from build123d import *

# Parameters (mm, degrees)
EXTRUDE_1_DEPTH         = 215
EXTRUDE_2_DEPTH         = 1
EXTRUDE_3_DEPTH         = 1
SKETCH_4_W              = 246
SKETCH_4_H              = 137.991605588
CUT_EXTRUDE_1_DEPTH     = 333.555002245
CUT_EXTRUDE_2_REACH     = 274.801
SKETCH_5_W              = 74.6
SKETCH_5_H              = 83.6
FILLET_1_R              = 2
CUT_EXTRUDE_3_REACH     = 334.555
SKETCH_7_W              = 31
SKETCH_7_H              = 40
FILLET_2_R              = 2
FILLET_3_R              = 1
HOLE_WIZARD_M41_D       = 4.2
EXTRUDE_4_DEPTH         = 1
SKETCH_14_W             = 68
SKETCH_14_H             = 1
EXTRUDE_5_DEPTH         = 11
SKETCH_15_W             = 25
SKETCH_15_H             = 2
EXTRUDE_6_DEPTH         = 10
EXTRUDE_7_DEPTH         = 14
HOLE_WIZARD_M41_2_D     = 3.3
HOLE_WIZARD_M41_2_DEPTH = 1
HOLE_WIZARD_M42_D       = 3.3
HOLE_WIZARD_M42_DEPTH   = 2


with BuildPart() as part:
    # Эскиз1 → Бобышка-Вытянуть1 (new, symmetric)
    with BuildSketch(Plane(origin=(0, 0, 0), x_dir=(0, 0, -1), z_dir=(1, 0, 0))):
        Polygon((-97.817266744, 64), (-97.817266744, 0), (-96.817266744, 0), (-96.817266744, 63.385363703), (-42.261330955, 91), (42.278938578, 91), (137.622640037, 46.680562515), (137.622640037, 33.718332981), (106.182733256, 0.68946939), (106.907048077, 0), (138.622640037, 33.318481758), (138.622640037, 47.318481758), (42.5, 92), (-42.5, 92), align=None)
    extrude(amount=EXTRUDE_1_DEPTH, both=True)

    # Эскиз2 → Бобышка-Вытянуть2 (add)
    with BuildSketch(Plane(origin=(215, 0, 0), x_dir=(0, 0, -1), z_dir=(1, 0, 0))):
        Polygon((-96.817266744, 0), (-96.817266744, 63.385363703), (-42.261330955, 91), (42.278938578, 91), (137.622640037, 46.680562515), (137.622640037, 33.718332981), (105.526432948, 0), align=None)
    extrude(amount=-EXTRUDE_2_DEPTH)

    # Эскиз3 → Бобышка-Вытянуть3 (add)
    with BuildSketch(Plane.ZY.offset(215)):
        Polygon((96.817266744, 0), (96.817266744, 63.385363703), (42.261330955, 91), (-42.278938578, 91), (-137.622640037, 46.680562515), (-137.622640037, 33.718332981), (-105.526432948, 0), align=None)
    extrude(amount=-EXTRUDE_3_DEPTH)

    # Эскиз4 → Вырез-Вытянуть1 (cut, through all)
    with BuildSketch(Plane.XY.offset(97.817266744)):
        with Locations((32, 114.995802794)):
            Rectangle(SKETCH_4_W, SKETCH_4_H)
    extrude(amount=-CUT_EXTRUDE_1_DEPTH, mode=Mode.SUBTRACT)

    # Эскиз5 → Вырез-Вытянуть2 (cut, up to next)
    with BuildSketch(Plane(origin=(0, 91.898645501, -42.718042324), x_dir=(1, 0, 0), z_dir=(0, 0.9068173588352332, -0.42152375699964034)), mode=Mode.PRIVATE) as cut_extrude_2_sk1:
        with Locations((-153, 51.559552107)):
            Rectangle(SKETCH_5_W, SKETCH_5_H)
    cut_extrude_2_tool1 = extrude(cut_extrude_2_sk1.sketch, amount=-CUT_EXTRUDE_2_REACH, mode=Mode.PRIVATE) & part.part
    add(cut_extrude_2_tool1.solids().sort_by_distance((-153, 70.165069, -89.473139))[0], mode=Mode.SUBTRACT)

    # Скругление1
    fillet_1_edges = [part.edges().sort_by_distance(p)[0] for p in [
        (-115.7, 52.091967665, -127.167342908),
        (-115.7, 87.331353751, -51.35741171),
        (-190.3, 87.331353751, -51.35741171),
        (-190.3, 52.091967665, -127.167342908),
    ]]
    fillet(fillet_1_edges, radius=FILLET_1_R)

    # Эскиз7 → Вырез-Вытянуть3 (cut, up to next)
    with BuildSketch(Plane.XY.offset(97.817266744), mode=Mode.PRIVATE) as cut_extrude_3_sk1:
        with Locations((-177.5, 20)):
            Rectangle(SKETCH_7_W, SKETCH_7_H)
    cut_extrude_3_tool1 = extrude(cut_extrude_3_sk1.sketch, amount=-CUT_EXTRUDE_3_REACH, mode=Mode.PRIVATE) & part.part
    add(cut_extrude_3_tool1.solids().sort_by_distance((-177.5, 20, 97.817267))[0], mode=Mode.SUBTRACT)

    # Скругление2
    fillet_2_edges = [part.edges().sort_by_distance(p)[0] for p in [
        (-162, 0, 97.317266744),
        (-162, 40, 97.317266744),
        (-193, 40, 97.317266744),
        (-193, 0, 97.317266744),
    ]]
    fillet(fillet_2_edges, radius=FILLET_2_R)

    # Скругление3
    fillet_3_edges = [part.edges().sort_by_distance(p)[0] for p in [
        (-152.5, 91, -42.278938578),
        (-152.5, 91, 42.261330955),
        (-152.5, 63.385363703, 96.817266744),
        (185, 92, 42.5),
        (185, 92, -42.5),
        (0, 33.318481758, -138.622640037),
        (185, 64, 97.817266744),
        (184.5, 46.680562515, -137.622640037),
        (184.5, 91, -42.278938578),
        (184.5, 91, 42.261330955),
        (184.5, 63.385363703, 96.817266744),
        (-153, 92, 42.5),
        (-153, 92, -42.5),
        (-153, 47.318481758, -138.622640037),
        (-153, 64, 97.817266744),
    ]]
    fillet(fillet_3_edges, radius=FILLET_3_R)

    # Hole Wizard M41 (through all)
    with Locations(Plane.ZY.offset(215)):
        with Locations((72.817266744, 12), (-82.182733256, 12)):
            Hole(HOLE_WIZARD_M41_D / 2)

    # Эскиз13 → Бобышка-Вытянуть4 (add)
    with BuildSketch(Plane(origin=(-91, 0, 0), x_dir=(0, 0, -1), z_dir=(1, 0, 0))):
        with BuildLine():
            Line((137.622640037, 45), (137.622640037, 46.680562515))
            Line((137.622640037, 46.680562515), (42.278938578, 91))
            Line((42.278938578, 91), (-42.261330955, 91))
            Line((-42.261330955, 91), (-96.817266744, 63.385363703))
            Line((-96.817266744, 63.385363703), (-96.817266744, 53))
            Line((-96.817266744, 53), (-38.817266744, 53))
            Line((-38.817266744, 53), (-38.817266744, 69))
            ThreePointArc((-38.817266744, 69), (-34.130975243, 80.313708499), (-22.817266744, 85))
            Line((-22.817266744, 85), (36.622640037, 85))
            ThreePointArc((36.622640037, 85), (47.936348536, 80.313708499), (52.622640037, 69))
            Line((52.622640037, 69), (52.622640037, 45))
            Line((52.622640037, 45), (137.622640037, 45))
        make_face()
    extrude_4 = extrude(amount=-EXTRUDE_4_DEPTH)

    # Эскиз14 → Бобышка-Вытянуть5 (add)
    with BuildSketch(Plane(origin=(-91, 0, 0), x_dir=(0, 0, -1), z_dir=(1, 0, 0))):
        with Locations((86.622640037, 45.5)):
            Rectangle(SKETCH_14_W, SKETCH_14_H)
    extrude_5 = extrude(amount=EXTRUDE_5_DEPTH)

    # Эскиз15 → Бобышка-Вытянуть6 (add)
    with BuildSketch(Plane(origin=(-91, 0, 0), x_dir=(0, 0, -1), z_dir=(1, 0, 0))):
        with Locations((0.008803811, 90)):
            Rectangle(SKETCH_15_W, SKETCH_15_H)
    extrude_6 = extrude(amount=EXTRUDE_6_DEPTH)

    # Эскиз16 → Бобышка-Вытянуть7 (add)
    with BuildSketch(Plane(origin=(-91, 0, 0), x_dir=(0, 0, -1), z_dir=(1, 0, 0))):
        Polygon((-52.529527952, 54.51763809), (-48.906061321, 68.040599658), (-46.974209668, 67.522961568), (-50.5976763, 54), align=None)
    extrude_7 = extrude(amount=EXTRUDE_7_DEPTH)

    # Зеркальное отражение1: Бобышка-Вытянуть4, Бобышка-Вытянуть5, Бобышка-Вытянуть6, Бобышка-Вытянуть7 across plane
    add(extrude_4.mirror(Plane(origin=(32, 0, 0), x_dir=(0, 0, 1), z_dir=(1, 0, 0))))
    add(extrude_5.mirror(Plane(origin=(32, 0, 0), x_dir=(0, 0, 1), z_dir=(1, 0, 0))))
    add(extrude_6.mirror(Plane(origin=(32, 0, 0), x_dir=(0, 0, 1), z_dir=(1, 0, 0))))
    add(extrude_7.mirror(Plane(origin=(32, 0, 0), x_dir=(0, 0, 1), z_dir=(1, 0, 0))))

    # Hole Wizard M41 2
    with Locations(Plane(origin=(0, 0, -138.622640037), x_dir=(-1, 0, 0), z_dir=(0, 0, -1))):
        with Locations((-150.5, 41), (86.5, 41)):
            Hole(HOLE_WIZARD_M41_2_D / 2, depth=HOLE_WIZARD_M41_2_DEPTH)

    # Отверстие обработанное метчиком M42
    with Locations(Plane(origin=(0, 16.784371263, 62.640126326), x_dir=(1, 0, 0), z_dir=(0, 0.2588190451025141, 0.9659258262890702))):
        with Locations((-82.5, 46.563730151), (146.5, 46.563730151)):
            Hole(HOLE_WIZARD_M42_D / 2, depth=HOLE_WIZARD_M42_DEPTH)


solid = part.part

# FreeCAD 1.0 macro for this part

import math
import FreeCAD as App
import Part
import Sketcher
from FreeCAD import Vector
Q = App.Units.Quantity


def edges_at(feature, points):
    """Names of the edges that pass closest to the given points."""
    edges = feature.Shape.Edges
    near = lambda p: min(range(len(edges)), key=lambda i: edges[i].distToShape(Part.Vertex(*p))[0])
    return sorted({f"Edge{near(p) + 1}" for p in points})


def add_polygon(sketch, points):
    """Adds a closed chain of lines whose ends are joined by coincident constraints."""
    first, n = sketch.GeometryCount, len(points)
    for a, b in zip(points, points[1:] + points[:1]):
        sketch.addGeometry(Part.LineSegment(App.Vector(*a, 0), App.Vector(*b, 0)), False)
    for i in range(n):
        sketch.addConstraint(Sketcher.Constraint("Coincident", first + i, 2, first + (i + 1) % n, 1))

doc = App.newDocument("Part")
body = doc.addObject("PartDesign::Body", "Body")

sketch1 = body.newObject("Sketcher::SketchObject", "Sketch")
sketch1.AttachmentSupport = (doc.getObject("YZ_Plane"), [""])
sketch1.MapMode = "FlatFace"
add_polygon(sketch1, [(64, 97.817267), (0, 97.817267), (0, 96.817267), (63.385364, 96.817267), (91, 42.261331), (91, -42.278939), (46.680563, -137.62264), (33.718333, -137.62264), (0.689469, -106.182733), (0, -106.907048), (33.318482, -138.62264), (47.318482, -138.62264), (92, -42.5), (92, 42.5)])
sketch1.addConstraint([
    Sketcher.Constraint("Horizontal", 0),
    Sketcher.Constraint("Vertical", 1),
    Sketcher.Constraint("Horizontal", 2),
    Sketcher.Constraint("Vertical", 4),
    Sketcher.Constraint("Horizontal", 6),
    Sketcher.Constraint("Horizontal", 10),
    Sketcher.Constraint("Vertical", 12),
    Sketcher.Constraint("PointOnObject", 0, 2, -2),
    Sketcher.Constraint("PointOnObject", 8, 2, -2),
    Sketcher.Constraint("Perpendicular", 7, 8),
    Sketcher.Constraint("Perpendicular", 8, 9),
    Sketcher.Constraint("Parallel", 5, 11),
    Sketcher.Constraint("Parallel", 3, 13),
    Sketcher.Constraint("DistanceX", 0, 2, 0, 1, Q("64 mm")),
    Sketcher.Constraint("DistanceX", 10, 1, 10, 2, Q("14 mm")),
    Sketcher.Constraint("DistanceY", 1, 2, 1, 1, Q("1 mm")),
    Sketcher.Constraint("DistanceY", 12, 1, 12, 2, Q("85 mm")),
    Sketcher.Constraint("Distance", 8, Q("1 mm")),
    Sketcher.Constraint("Distance", 9, Q("46 mm")),
    Sketcher.Constraint("Distance", 11, Q("106 mm")),
    Sketcher.Constraint("Distance", 13, Q("62 mm")),
    Sketcher.Constraint("DistanceX", -1, 1, 3, 2, Q("91 mm")),
    Sketcher.Constraint("DistanceX", -1, 1, 11, 2, Q("92 mm")),
    Sketcher.Constraint("DistanceY", 7, 2, 1, 2, Q("203 mm")),
    Sketcher.Constraint("DistanceY", 9, 2, 6, 2, Q("1 mm")),
    Sketcher.Constraint("DistanceY", 11, 2, -1, 1, Q("42.5 mm")),
    Sketcher.Constraint("DistanceX", 6, 2, 6, 1, Q("12.96223 mm")),
    Sketcher.Constraint("DistanceY", 4, 2, 4, 1, Q("84.54027 mm")),
])
pad1 = body.newObject("PartDesign::Pad", "Pad")
pad1.Profile = sketch1
pad1.Length = 430
pad1.Midplane = True

sketch2 = body.newObject("Sketcher::SketchObject", "Sketch001")
sketch2.AttachmentSupport = (doc.getObject("YZ_Plane"), [""])
sketch2.MapMode = "FlatFace"
sketch2.AttachmentOffset = App.Placement(Vector(0, 0, 215), App.Rotation())
add_polygon(sketch2, [(63.385364, 96.817267), (0, 96.817267), (0, -105.526433), (33.718333, -137.62264), (46.680563, -137.62264), (91, -42.278939), (91, 42.261331)])
sketch2.addConstraint([
    Sketcher.Constraint("Horizontal", 0),
    Sketcher.Constraint("Vertical", 1),
    Sketcher.Constraint("Horizontal", 3),
    Sketcher.Constraint("Vertical", 5),
    Sketcher.Constraint("PointOnObject", 0, 2, -2),
    Sketcher.Constraint("DistanceX", -1, 1, 4, 2, Q("91 mm")),
    Sketcher.Constraint("DistanceY", 1, 2, 1, 1, Q("202.3437 mm")),
    Sketcher.Constraint("DistanceX", 3, 1, 3, 2, Q("12.96223 mm")),
    Sketcher.Constraint("DistanceY", 5, 1, 5, 2, Q("84.54027 mm")),
    Sketcher.Constraint("DistanceY", 3, 2, 4, 2, Q("95.343701 mm")),
    Sketcher.Constraint("DistanceX", 3, 2, 6, 2, Q("16.704801 mm")),
    Sketcher.Constraint("Distance", 2, Q("46.552041 mm")),
    Sketcher.Constraint("Distance", 4, Q("105.141019 mm")),
    Sketcher.Constraint("DistanceY", 2, 2, -1, 1, Q("137.62264 mm")),
])
pad2 = body.newObject("PartDesign::Pad", "Pad001")
pad2.Profile = sketch2
pad2.Length = 1
pad2.Reversed = True

sketch3 = body.newObject("Sketcher::SketchObject", "Sketch002")
sketch3.AttachmentSupport = (doc.getObject("YZ_Plane"), [""])
sketch3.MapMode = "FlatFace"
sketch3.AttachmentOffset = App.Placement(Vector(0, 0, -215), App.Rotation())
add_polygon(sketch3, [(0, 96.817267), (63.385364, 96.817267), (91, 42.261331), (91, -42.278939), (46.680563, -137.62264), (33.718333, -137.62264), (0, -105.526433)])
sketch3.addConstraint([
    Sketcher.Constraint("Horizontal", 0),
    Sketcher.Constraint("Vertical", 2),
    Sketcher.Constraint("Horizontal", 4),
    Sketcher.Constraint("Vertical", 6),
    Sketcher.Constraint("PointOnObject", 5, 2, -2),
    Sketcher.Constraint("DistanceX", -1, 1, 1, 2, Q("91 mm")),
    Sketcher.Constraint("DistanceY", 6, 1, 6, 2, Q("202.3437 mm")),
    Sketcher.Constraint("DistanceX", 4, 2, 4, 1, Q("12.96223 mm")),
    Sketcher.Constraint("DistanceY", 2, 2, 2, 1, Q("84.54027 mm")),
    Sketcher.Constraint("DistanceY", 3, 2, 2, 2, Q("95.343701 mm")),
    Sketcher.Constraint("DistanceX", 3, 2, 0, 2, Q("16.704801 mm")),
    Sketcher.Constraint("Distance", 3, Q("105.141019 mm")),
    Sketcher.Constraint("Distance", 5, Q("46.552041 mm")),
    Sketcher.Constraint("DistanceY", -1, 1, 1, 2, Q("42.261331 mm")),
])
pad3 = body.newObject("PartDesign::Pad", "Pad002")
pad3.Profile = sketch3
pad3.Length = 1

sketch4 = body.newObject("Sketcher::SketchObject", "Sketch003")
sketch4.AttachmentSupport = (doc.getObject("XY_Plane"), [""])
sketch4.MapMode = "FlatFace"
sketch4.AttachmentOffset = App.Placement(Vector(0, 0, 97.817267), App.Rotation())
add_polygon(sketch4, [(-91, 183.991606), (-91, 46), (155, 46), (155, 183.991606)])
sketch4.addConstraint([
    Sketcher.Constraint("Vertical", 0),
    Sketcher.Constraint("Horizontal", 1),
    Sketcher.Constraint("Vertical", 2),
    Sketcher.Constraint("Horizontal", 3),
    Sketcher.Constraint("DistanceX", 1, 1, 1, 2, Q("246 mm")),
    Sketcher.Constraint("DistanceX", 0, 2, -1, 1, Q("91 mm")),
    Sketcher.Constraint("DistanceY", -1, 1, 0, 2, Q("46 mm")),
    Sketcher.Constraint("DistanceY", 0, 2, 0, 1, Q("137.991606 mm")),
])
pocket1 = body.newObject("PartDesign::Pocket", "Pocket")
pocket1.Profile = sketch4
pocket1.Type = "ThroughAll"

sketch5 = body.newObject("Sketcher::SketchObject", "Sketch004")
sketch5.Placement = App.Placement(Vector(0, 91.898646, -42.718042), App.Rotation(Vector(1, 0, 0), Vector(0, -0.421523757, -0.906817359), Vector(0, 0.906817359, -0.421523757), "ZXY"))
add_polygon(sketch5, [(-190.3, 93.359552), (-190.3, 9.759552), (-115.7, 9.759552), (-115.7, 93.359552)])
sketch5.addConstraint([
    Sketcher.Constraint("Vertical", 0),
    Sketcher.Constraint("Horizontal", 1),
    Sketcher.Constraint("Vertical", 2),
    Sketcher.Constraint("Horizontal", 3),
    Sketcher.Constraint("DistanceX", 1, 1, 1, 2, Q("74.6 mm")),
    Sketcher.Constraint("DistanceY", 0, 2, 0, 1, Q("83.6 mm")),
    Sketcher.Constraint("DistanceX", 0, 2, -1, 1, Q("190.3 mm")),
    Sketcher.Constraint("DistanceY", -1, 1, 0, 2, Q("9.759552 mm")),
])
pocket2 = body.newObject("PartDesign::Pocket", "Pocket001")
pocket2.Profile = sketch5
pocket2.Type = "UpToFirst"
doc.recompute()

fillet = body.newObject("PartDesign::Fillet", "Fillet")
fillet.Base = (pocket2, edges_at(pocket2, [
    (-115.7, 52.092, -127.167),
    (-115.7, 87.331, -51.357),
    (-190.3, 87.331, -51.357),
    (-190.3, 52.092, -127.167),
]))
fillet.Radius = 2

sketch6 = body.newObject("Sketcher::SketchObject", "Sketch005")
sketch6.AttachmentSupport = (doc.getObject("XY_Plane"), [""])
sketch6.MapMode = "FlatFace"
sketch6.AttachmentOffset = App.Placement(Vector(0, 0, 97.817267), App.Rotation())
add_polygon(sketch6, [(-193, 40), (-193, 0), (-162, 0), (-162, 40)])
sketch6.addConstraint([
    Sketcher.Constraint("Vertical", 0),
    Sketcher.Constraint("Horizontal", 1),
    Sketcher.Constraint("Vertical", 2),
    Sketcher.Constraint("Horizontal", 3),
    Sketcher.Constraint("PointOnObject", 0, 2, -1),
    Sketcher.Constraint("DistanceX", 1, 1, 1, 2, Q("31 mm")),
    Sketcher.Constraint("DistanceY", 0, 2, 0, 1, Q("40 mm")),
    Sketcher.Constraint("DistanceX", 0, 2, -1, 1, Q("193 mm")),
])
pocket3 = body.newObject("PartDesign::Pocket", "Pocket002")
pocket3.Profile = sketch6
pocket3.Type = "UpToFirst"
doc.recompute()

fillet2 = body.newObject("PartDesign::Fillet", "Fillet001")
fillet2.Base = (pocket3, edges_at(pocket3, [
    (-162, 0, 97.317),
    (-162, 40, 97.317),
    (-193, 40, 97.317),
    (-193, 0, 97.317),
]))
fillet2.Radius = 2
doc.recompute()

fillet3 = body.newObject("PartDesign::Fillet", "Fillet002")
fillet3.Base = (fillet2, edges_at(fillet2, [
    (-152.5, 91, -42.279),
    (-152.5, 91, 42.261),
    (-152.5, 63.385, 96.817),
    (185, 92, 42.5),
    (185, 92, -42.5),
    (0, 33.318, -138.623),
    (185, 64, 97.817),
    (184.5, 46.681, -137.623),
    (184.5, 91, -42.279),
    (184.5, 91, 42.261),
    (184.5, 63.385, 96.817),
    (-153, 92, 42.5),
    (-153, 92, -42.5),
    (-153, 47.318, -138.623),
    (-153, 64, 97.817),
]))
fillet3.Radius = 1

sketch7 = body.newObject("Sketcher::SketchObject", "Sketch006")
sketch7.AttachmentSupport = (doc.getObject("YZ_Plane"), [""])
sketch7.MapMode = "FlatFace"
sketch7.AttachmentOffset = App.Placement(Vector(0, 0, -215), App.Rotation())
sketch7.addGeometry([
    Part.Circle(Vector(12, 72.817267, 0), Vector(0, 0, 1), 2.1),
    Part.Circle(Vector(12, -82.182733, 0), Vector(0, 0, 1), 2.1),
], False)
sketch7.addConstraint([
    Sketcher.Constraint("Equal", 0, 1),
    Sketcher.Constraint("Vertical", 0, 3, 1, 3),
    Sketcher.Constraint("Diameter", 0, Q("4.2 mm")),
    Sketcher.Constraint("DistanceX", -1, 1, 0, 3, Q("12 mm")),
    Sketcher.Constraint("DistanceY", 1, 3, 0, 3, Q("155 mm")),
    Sketcher.Constraint("DistanceY", -1, 1, 0, 3, Q("72.817267 mm")),
])
doc.recompute()
hole = body.newObject("PartDesign::Hole", "Hole")
hole.Profile = sketch7
hole.ThreadType = "None"
hole.Diameter = 4.2
hole.DepthType = "ThroughAll"
hole.Reversed = True

sketch8 = body.newObject("Sketcher::SketchObject", "Sketch007")
sketch8.AttachmentSupport = (doc.getObject("YZ_Plane"), [""])
sketch8.MapMode = "FlatFace"
sketch8.AttachmentOffset = App.Placement(Vector(0, 0, -91), App.Rotation())
sketch8.addGeometry([
    Part.LineSegment(Vector(45, -137.62264, 0), Vector(46.680563, -137.62264, 0)),
    Part.LineSegment(Vector(46.680563, -137.62264, 0), Vector(91, -42.278939, 0)),
    Part.LineSegment(Vector(91, -42.278939, 0), Vector(91, 42.261331, 0)),
    Part.LineSegment(Vector(91, 42.261331, 0), Vector(63.385364, 96.817267, 0)),
    Part.LineSegment(Vector(63.385364, 96.817267, 0), Vector(53, 96.817267, 0)),
    Part.LineSegment(Vector(53, 96.817267, 0), Vector(53, 38.817267, 0)),
    Part.LineSegment(Vector(53, 38.817267, 0), Vector(69, 38.817267, 0)),
    Part.ArcOfCircle(Part.Circle(Vector(69, 22.817267, 0), Vector(0, 0, 1), 16), math.radians(0), math.radians(90)),
    Part.LineSegment(Vector(85, 22.817267, 0), Vector(85, -36.62264, 0)),
    Part.ArcOfCircle(Part.Circle(Vector(69, -36.62264, 0), Vector(0, 0, 1), 16), math.radians(-90), math.radians(0)),
    Part.LineSegment(Vector(69, -52.62264, 0), Vector(45, -52.62264, 0)),
    Part.LineSegment(Vector(45, -52.62264, 0), Vector(45, -137.62264, 0)),
], False)
sketch8.addConstraint([
    Sketcher.Constraint("Coincident", 0, 2, 1, 1),
    Sketcher.Constraint("Coincident", 1, 2, 2, 1),
    Sketcher.Constraint("Coincident", 2, 2, 3, 1),
    Sketcher.Constraint("Coincident", 3, 2, 4, 1),
    Sketcher.Constraint("Coincident", 4, 2, 5, 1),
    Sketcher.Constraint("Coincident", 5, 2, 6, 1),
    Sketcher.Constraint("Tangent", 6, 2, 7, 2),
    Sketcher.Constraint("Tangent", 7, 1, 8, 1),
    Sketcher.Constraint("Tangent", 8, 2, 9, 2),
    Sketcher.Constraint("Tangent", 9, 1, 10, 1),
    Sketcher.Constraint("Coincident", 10, 2, 11, 1),
    Sketcher.Constraint("Coincident", 11, 2, 0, 1),
    Sketcher.Constraint("Horizontal", 0),
    Sketcher.Constraint("Vertical", 2),
    Sketcher.Constraint("Horizontal", 4),
    Sketcher.Constraint("Vertical", 5),
    Sketcher.Constraint("Horizontal", 6),
    Sketcher.Constraint("Vertical", 8),
    Sketcher.Constraint("Horizontal", 10),
    Sketcher.Constraint("Vertical", 11),
    Sketcher.Constraint("Equal", 7, 9),
    Sketcher.Constraint("Radius", 7, Q("16 mm")),
    Sketcher.Constraint("DistanceX", 6, 1, 6, 2, Q("16 mm")),
    Sketcher.Constraint("DistanceX", 10, 2, 10, 1, Q("24 mm")),
    Sketcher.Constraint("DistanceY", 5, 2, 5, 1, Q("58 mm")),
    Sketcher.Constraint("DistanceY", 11, 2, 11, 1, Q("85 mm")),
    Sketcher.Constraint("DistanceX", -1, 1, 7, 3, Q("69 mm")),
    Sketcher.Constraint("DistanceX", -1, 1, 1, 2, Q("91 mm")),
    Sketcher.Constraint("DistanceY", 2, 1, 2, 2, Q("84.54027 mm")),
    Sketcher.Constraint("DistanceY", 1, 2, 9, 3, Q("5.656299 mm")),
    Sketcher.Constraint("DistanceX", 0, 2, 3, 2, Q("16.704801 mm")),
    Sketcher.Constraint("Distance", 1, Q("105.141019 mm")),
    Sketcher.Constraint("DistanceY", 8, 2, 8, 1, Q("59.439907 mm")),
    Sketcher.Constraint("DistanceY", 9, 3, -1, 1, Q("36.62264 mm")),
])
pad4 = body.newObject("PartDesign::Pad", "Pad003")
pad4.Profile = sketch8
pad4.Length = 1
pad4.Reversed = True

sketch9 = body.newObject("Sketcher::SketchObject", "Sketch008")
sketch9.AttachmentSupport = (doc.getObject("YZ_Plane"), [""])
sketch9.MapMode = "FlatFace"
sketch9.AttachmentOffset = App.Placement(Vector(0, 0, -91), App.Rotation())
add_polygon(sketch9, [(46, -52.62264), (45, -52.62264), (45, -120.62264), (46, -120.62264)])
sketch9.addConstraint([
    Sketcher.Constraint("Horizontal", 0),
    Sketcher.Constraint("Vertical", 1),
    Sketcher.Constraint("Horizontal", 2),
    Sketcher.Constraint("Vertical", 3),
    Sketcher.Constraint("DistanceX", 0, 2, 0, 1, Q("1 mm")),
    Sketcher.Constraint("DistanceY", 1, 2, 1, 1, Q("68 mm")),
    Sketcher.Constraint("DistanceX", -1, 1, 0, 2, Q("45 mm")),
    Sketcher.Constraint("DistanceY", 0, 2, -1, 1, Q("52.62264 mm")),
])
pad5 = body.newObject("PartDesign::Pad", "Pad004")
pad5.Profile = sketch9
pad5.Length = 11

sketch10 = body.newObject("Sketcher::SketchObject", "Sketch009")
sketch10.AttachmentSupport = (doc.getObject("YZ_Plane"), [""])
sketch10.MapMode = "FlatFace"
sketch10.AttachmentOffset = App.Placement(Vector(0, 0, -91), App.Rotation())
add_polygon(sketch10, [(91, 12.491196), (89, 12.491196), (89, -12.508804), (91, -12.508804)])
sketch10.addConstraint([
    Sketcher.Constraint("Horizontal", 0),
    Sketcher.Constraint("Vertical", 1),
    Sketcher.Constraint("Horizontal", 2),
    Sketcher.Constraint("Vertical", 3),
    Sketcher.Constraint("DistanceX", 0, 2, 0, 1, Q("2 mm")),
    Sketcher.Constraint("DistanceY", 1, 2, 1, 1, Q("25 mm")),
    Sketcher.Constraint("DistanceX", -1, 1, 0, 2, Q("89 mm")),
    Sketcher.Constraint("DistanceY", -1, 1, 0, 2, Q("12.491196 mm")),
])
pad6 = body.newObject("PartDesign::Pad", "Pad005")
pad6.Profile = sketch10
pad6.Length = 10

sketch11 = body.newObject("Sketcher::SketchObject", "Sketch010")
sketch11.AttachmentSupport = (doc.getObject("YZ_Plane"), [""])
sketch11.MapMode = "FlatFace"
sketch11.AttachmentOffset = App.Placement(Vector(0, 0, -91), App.Rotation())
add_polygon(sketch11, [(68.0406, 48.906061), (54.517638, 52.529528), (54, 50.597676), (67.522962, 46.97421)])
sketch11.addConstraint([
    Sketcher.Constraint("Perpendicular", 0, 1),
    Sketcher.Constraint("Perpendicular", 1, 2),
    Sketcher.Constraint("Perpendicular", 2, 3),
    Sketcher.Constraint("Angle", 0, Q("165 deg")),
    Sketcher.Constraint("Distance", 0, Q("14 mm")),
    Sketcher.Constraint("Distance", 1, Q("2 mm")),
    Sketcher.Constraint("DistanceX", -1, 1, 1, 2, Q("54 mm")),
    Sketcher.Constraint("DistanceY", -1, 1, 2, 2, Q("46.97421 mm")),
])
pad7 = body.newObject("PartDesign::Pad", "Pad006")
pad7.Profile = sketch11
pad7.Length = 14
doc.recompute()

datumplane = body.newObject("PartDesign::Plane", "DatumPlane")
datumplane.AttachmentSupport = (doc.getObject("YZ_Plane"), [""])
datumplane.MapMode = "FlatFace"
datumplane.AttachmentOffset = App.Placement(Vector(0, 0, 32), App.Rotation())
mirrored = body.newObject("PartDesign::Mirrored", "Mirrored")
mirrored.Originals = [pad4, pad5, pad6, pad7]
mirrored.MirrorPlane = (datumplane, [""])
body.Tip = mirrored

sketch12 = body.newObject("Sketcher::SketchObject", "Sketch011")
sketch12.AttachmentSupport = (doc.getObject("XY_Plane"), [""])
sketch12.MapMode = "FlatFace"
sketch12.AttachmentOffset = App.Placement(Vector(0, 0, -138.62264), App.Rotation())
sketch12.addGeometry([
    Part.Circle(Vector(150.5, 41, 0), Vector(0, 0, 1), 1.65),
    Part.Circle(Vector(-86.5, 41, 0), Vector(0, 0, 1), 1.65),
], False)
sketch12.addConstraint([
    Sketcher.Constraint("Equal", 0, 1),
    Sketcher.Constraint("Horizontal", 0, 3, 1, 3),
    Sketcher.Constraint("Diameter", 0, Q("3.3 mm")),
    Sketcher.Constraint("DistanceY", -1, 1, 0, 3, Q("41 mm")),
    Sketcher.Constraint("DistanceX", 1, 3, 0, 3, Q("237 mm")),
    Sketcher.Constraint("DistanceX", -1, 1, 0, 3, Q("150.5 mm")),
])
doc.recompute()
hole2 = body.newObject("PartDesign::Hole", "Hole001")
hole2.Profile = sketch12
hole2.ThreadType = "None"
hole2.Diameter = 3.3
hole2.DepthType = "Dimension"
hole2.Depth = 1
hole2.DrillPoint = "Flat"
hole2.Reversed = True

sketch13 = body.newObject("Sketcher::SketchObject", "Sketch012")
sketch13.Placement = App.Placement(Vector(0, 16.784371, 62.640126), App.Rotation(Vector(1, 0, 0), Vector(0, 0.965925826, -0.258819045), Vector(0, 0.258819045, 0.965925826), "ZXY"))
sketch13.addGeometry([
    Part.Circle(Vector(-82.5, 46.56373, 0), Vector(0, 0, 1), 1.65),
    Part.Circle(Vector(146.5, 46.56373, 0), Vector(0, 0, 1), 1.65),
], False)
sketch13.addConstraint([
    Sketcher.Constraint("Equal", 0, 1),
    Sketcher.Constraint("Horizontal", 0, 3, 1, 3),
    Sketcher.Constraint("Diameter", 0, Q("3.3 mm")),
    Sketcher.Constraint("DistanceX", 0, 3, 1, 3, Q("229 mm")),
    Sketcher.Constraint("DistanceX", 0, 3, -1, 1, Q("82.5 mm")),
    Sketcher.Constraint("DistanceY", -1, 1, 0, 3, Q("46.56373 mm")),
])
doc.recompute()
hole3 = body.newObject("PartDesign::Hole", "Hole002")
hole3.Profile = sketch13
hole3.ThreadType = "None"
hole3.Diameter = 3.3
hole3.DepthType = "Dimension"
hole3.Depth = 2
hole3.DrillPoint = "Flat"

doc.recompute()
